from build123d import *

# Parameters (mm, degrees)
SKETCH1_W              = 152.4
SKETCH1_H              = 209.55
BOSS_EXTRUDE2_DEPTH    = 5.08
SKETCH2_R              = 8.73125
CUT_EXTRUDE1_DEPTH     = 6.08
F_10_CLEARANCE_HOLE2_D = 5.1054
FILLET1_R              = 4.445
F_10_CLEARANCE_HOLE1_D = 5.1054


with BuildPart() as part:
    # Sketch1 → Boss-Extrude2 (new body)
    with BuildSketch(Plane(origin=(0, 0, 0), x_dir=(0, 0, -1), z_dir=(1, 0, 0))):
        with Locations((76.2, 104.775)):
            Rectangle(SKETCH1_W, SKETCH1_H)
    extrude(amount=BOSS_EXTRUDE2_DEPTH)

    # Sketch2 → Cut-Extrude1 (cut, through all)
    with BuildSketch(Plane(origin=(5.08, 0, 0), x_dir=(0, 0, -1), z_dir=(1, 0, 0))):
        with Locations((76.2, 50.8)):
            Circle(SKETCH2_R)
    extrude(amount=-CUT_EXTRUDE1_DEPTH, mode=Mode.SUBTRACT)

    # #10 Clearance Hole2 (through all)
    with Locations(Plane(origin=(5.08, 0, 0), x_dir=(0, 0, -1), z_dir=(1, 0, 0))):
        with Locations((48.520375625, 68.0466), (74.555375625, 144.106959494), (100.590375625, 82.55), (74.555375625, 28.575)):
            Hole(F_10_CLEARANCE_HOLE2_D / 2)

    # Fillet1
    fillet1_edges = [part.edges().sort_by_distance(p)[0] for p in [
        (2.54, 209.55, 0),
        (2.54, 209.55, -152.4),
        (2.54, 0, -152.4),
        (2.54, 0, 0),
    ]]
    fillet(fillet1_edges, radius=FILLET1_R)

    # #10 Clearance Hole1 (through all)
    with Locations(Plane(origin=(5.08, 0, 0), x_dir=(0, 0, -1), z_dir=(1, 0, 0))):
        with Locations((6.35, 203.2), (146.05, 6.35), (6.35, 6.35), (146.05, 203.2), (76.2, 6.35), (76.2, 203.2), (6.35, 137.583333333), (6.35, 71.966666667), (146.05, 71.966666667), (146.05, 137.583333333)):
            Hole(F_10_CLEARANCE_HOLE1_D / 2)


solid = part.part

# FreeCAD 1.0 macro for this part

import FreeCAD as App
import Part
import Sketcher
Q = App.Units.Quantity


def edges_at(feature, points):
    """Names of the edges that pass closest to the given points."""
    edges = feature.Shape.Edges
    near = lambda p: min(range(len(edges)), key=lambda i: edges[i].distToShape(Part.Vertex(*p))[0])
    return sorted({f"Edge{near(p) + 1}" for p in points})

doc = App.newDocument("Part")
body = doc.addObject("PartDesign::Body", "Body")

# Sketch on YZ plane
sketch1 = body.newObject("Sketcher::SketchObject", "Sketch")
sketch1.AttachmentSupport = (doc.getObject("YZ_Plane"), [""])
sketch1.MapMode = "FlatFace"
sketch1.addGeometry([
    Part.LineSegment(App.Vector(210, 0, 0), App.Vector(0, 0, 0)),
    Part.LineSegment(App.Vector(0, 0, 0), App.Vector(0, -152, 0)),
    Part.LineSegment(App.Vector(0, -152, 0), App.Vector(210, -152, 0)),
    Part.LineSegment(App.Vector(210, -152, 0), App.Vector(210, 0, 0)),
], False)
sketch1.addConstraint([
    Sketcher.Constraint("Coincident", 0, 2, 1, 1),
    Sketcher.Constraint("Coincident", 1, 2, 2, 1),
    Sketcher.Constraint("Coincident", 2, 2, 3, 1),
    Sketcher.Constraint("Coincident", 3, 2, 0, 1),
    Sketcher.Constraint("Horizontal", 0),
    Sketcher.Constraint("Vertical", 1),
    Sketcher.Constraint("Horizontal", 2),
    Sketcher.Constraint("Vertical", 3),
    Sketcher.Constraint("Coincident", 0, 2, -1, 1),
    Sketcher.Constraint("DistanceY", 1, 2, 1, 1, Q("6 in")),
    Sketcher.Constraint("DistanceX", 0, 2, 0, 1, Q("8.25 in")),
])
pad1 = body.newObject("PartDesign::Pad", "Pad")
pad1.Profile = sketch1
pad1.Length = Q("0.2 in")

# Sketch on YZ plane
sketch2 = body.newObject("Sketcher::SketchObject", "Sketch001")
sketch2.AttachmentSupport = (doc.getObject("YZ_Plane"), [""])
sketch2.MapMode = "FlatFace"
sketch2.AttachmentOffset = App.Placement(App.Vector(0, 0, 0.2 * 25.4), App.Rotation())
sketch2.addGeometry(Part.Circle(App.Vector(51, -76, 0), App.Vector(0, 0, 1), 9), False)
sketch2.addConstraint([
    Sketcher.Constraint("Diameter", 0, Q("0.6875 in")),
    Sketcher.Constraint("DistanceX", -1, 1, 0, 3, Q("2 in")),
    Sketcher.Constraint("DistanceY", 0, 3, -1, 1, Q("3 in")),
])
pocket1 = body.newObject("PartDesign::Pocket", "Pocket")
pocket1.Profile = sketch2
pocket1.Type = "ThroughAll"

# Sketch on YZ plane
sketch3 = body.newObject("Sketcher::SketchObject", "Sketch002")
sketch3.AttachmentSupport = (doc.getObject("YZ_Plane"), [""])
sketch3.MapMode = "FlatFace"
sketch3.AttachmentOffset = App.Placement(App.Vector(0, 0, 0.2 * 25.4), App.Rotation())
sketch3.addGeometry([
    Part.Circle(App.Vector(68, -48.5, 0), App.Vector(0, 0, 1), 2.6),
    Part.Circle(App.Vector(144.1, -74.6, 0), App.Vector(0, 0, 1), 2.6),
    Part.Circle(App.Vector(82.5, -100.6, 0), App.Vector(0, 0, 1), 2.6),
    Part.Circle(App.Vector(28.6, -74.6, 0), App.Vector(0, 0, 1), 2.6),
], False)
sketch3.addConstraint([
    Sketcher.Constraint("Equal", 0, 1),
    Sketcher.Constraint("Equal", 1, 2),
    Sketcher.Constraint("Equal", 2, 3),
    Sketcher.Constraint("Horizontal", 1, 3, 3, 3),
    Sketcher.Constraint("Diameter", 0, Q("0.201 in")),
    Sketcher.Constraint("DistanceX", -1, 1, 2, 3, Q("3.25 in")),
    Sketcher.Constraint("DistanceY", 2, 3, 0, 3, Q("2.05 in")),
    Sketcher.Constraint("DistanceX", -1, 1, 0, 3, Q("2.679 in")),
    Sketcher.Constraint("DistanceX", -1, 1, 3, 3, Q("1.125 in")),
    Sketcher.Constraint("DistanceY", 1, 3, 0, 3, Q("1.025 in")),
    Sketcher.Constraint("DistanceX", -1, 1, 1, 3, 144.106959),
    Sketcher.Constraint("DistanceY", 0, 3, -1, 1, 48.520376),
])
doc.recompute()
hole = body.newObject("PartDesign::Hole", "Hole")
hole.Profile = sketch3
hole.ThreadType = "None"
hole.Diameter = Q("0.201 in")
hole.DepthType = "ThroughAll"
doc.recompute()

fillet = body.newObject("PartDesign::Fillet", "Fillet")
fillet.Base = (hole, edges_at(hole, [
    (2.54, 209.55, 0),
    (2.54, 209.55, -152.4),
    (2.54, 0, -152.4),
    (2.54, 0, 0),
]))
fillet.Radius = Q("0.175 in")

# Sketch on YZ plane
sketch4 = body.newObject("Sketcher::SketchObject", "Sketch003")
sketch4.AttachmentSupport = (doc.getObject("YZ_Plane"), [""])
sketch4.MapMode = "FlatFace"
sketch4.AttachmentOffset = App.Placement(App.Vector(0, 0, 0.2 * 25.4), App.Rotation())
sketch4.addGeometry([
    Part.Circle(App.Vector(203.2, -6.3, 0), App.Vector(0, 0, 1), 2.6),  # 0
    Part.Circle(App.Vector(6.3, -146.1, 0), App.Vector(0, 0, 1), 2.6),  # 1
    Part.Circle(App.Vector(6.3, -6.3, 0), App.Vector(0, 0, 1), 2.6),  # 2
    Part.Circle(App.Vector(203.2, -146.1, 0), App.Vector(0, 0, 1), 2.6),  # 3
    Part.Circle(App.Vector(6.3, -76.2, 0), App.Vector(0, 0, 1), 2.6),  # 4
    Part.Circle(App.Vector(203.2, -76.2, 0), App.Vector(0, 0, 1), 2.6),  # 5
    Part.Circle(App.Vector(137.6, -6.3, 0), App.Vector(0, 0, 1), 2.6),  # 6
    Part.Circle(App.Vector(72, -6.3, 0), App.Vector(0, 0, 1), 2.6),  # 7
    Part.Circle(App.Vector(72, -146.1, 0), App.Vector(0, 0, 1), 2.6),  # 8
    Part.Circle(App.Vector(137.6, -146.1, 0), App.Vector(0, 0, 1), 2.6),  # 9
], False)
sketch4.addConstraint([
    Sketcher.Constraint("Equal", 0, 1),
    Sketcher.Constraint("Equal", 1, 2),
    Sketcher.Constraint("Equal", 2, 3),
    Sketcher.Constraint("Equal", 3, 4),
    Sketcher.Constraint("Equal", 4, 5),
    Sketcher.Constraint("Equal", 5, 6),
    Sketcher.Constraint("Equal", 6, 7),
    Sketcher.Constraint("Equal", 7, 8),
    Sketcher.Constraint("Equal", 8, 9),
    Sketcher.Constraint("Horizontal", 0, 3, 2, 3),
    Sketcher.Constraint("Horizontal", 1, 3, 3, 3),
    Sketcher.Constraint("Horizontal", 4, 3, 5, 3),
    Sketcher.Constraint("Horizontal", 2, 3, 6, 3),
    Sketcher.Constraint("Horizontal", 6, 3, 7, 3),
    Sketcher.Constraint("Horizontal", 3, 3, 8, 3),
    Sketcher.Constraint("Horizontal", 8, 3, 9, 3),
    Sketcher.Constraint("Vertical", 1, 3, 2, 3),
    Sketcher.Constraint("Vertical", 0, 3, 3, 3),
    Sketcher.Constraint("Vertical", 2, 3, 4, 3),
    Sketcher.Constraint("Vertical", 3, 3, 5, 3),
    Sketcher.Constraint("Vertical", 7, 3, 8, 3),
    Sketcher.Constraint("Vertical", 6, 3, 9, 3),
    Sketcher.Constraint("Diameter", 0, Q("0.201 in")),
    Sketcher.Constraint("DistanceX", -1, 1, 0, 3, Q("8 in")),
    Sketcher.Constraint("DistanceY", 4, 3, -1, 1, Q("3 in")),
    Sketcher.Constraint("DistanceY", 1, 3, 0, 3, Q("5.5 in")),
    Sketcher.Constraint("DistanceY", 0, 3, -1, 1, Q("0.25 in")),
    Sketcher.Constraint("DistanceX", -1, 1, 1, 3, Q("0.25 in")),
    Sketcher.Constraint("DistanceX", -1, 1, 6, 3, 137.583333),
    Sketcher.Constraint("DistanceX", -1, 1, 7, 3, 71.966667),
])
doc.recompute()
hole2 = body.newObject("PartDesign::Hole", "Hole001")
hole2.Profile = sketch4
hole2.ThreadType = "None"
hole2.Diameter = Q("0.201 in")
hole2.DepthType = "ThroughAll"

doc.recompute()
